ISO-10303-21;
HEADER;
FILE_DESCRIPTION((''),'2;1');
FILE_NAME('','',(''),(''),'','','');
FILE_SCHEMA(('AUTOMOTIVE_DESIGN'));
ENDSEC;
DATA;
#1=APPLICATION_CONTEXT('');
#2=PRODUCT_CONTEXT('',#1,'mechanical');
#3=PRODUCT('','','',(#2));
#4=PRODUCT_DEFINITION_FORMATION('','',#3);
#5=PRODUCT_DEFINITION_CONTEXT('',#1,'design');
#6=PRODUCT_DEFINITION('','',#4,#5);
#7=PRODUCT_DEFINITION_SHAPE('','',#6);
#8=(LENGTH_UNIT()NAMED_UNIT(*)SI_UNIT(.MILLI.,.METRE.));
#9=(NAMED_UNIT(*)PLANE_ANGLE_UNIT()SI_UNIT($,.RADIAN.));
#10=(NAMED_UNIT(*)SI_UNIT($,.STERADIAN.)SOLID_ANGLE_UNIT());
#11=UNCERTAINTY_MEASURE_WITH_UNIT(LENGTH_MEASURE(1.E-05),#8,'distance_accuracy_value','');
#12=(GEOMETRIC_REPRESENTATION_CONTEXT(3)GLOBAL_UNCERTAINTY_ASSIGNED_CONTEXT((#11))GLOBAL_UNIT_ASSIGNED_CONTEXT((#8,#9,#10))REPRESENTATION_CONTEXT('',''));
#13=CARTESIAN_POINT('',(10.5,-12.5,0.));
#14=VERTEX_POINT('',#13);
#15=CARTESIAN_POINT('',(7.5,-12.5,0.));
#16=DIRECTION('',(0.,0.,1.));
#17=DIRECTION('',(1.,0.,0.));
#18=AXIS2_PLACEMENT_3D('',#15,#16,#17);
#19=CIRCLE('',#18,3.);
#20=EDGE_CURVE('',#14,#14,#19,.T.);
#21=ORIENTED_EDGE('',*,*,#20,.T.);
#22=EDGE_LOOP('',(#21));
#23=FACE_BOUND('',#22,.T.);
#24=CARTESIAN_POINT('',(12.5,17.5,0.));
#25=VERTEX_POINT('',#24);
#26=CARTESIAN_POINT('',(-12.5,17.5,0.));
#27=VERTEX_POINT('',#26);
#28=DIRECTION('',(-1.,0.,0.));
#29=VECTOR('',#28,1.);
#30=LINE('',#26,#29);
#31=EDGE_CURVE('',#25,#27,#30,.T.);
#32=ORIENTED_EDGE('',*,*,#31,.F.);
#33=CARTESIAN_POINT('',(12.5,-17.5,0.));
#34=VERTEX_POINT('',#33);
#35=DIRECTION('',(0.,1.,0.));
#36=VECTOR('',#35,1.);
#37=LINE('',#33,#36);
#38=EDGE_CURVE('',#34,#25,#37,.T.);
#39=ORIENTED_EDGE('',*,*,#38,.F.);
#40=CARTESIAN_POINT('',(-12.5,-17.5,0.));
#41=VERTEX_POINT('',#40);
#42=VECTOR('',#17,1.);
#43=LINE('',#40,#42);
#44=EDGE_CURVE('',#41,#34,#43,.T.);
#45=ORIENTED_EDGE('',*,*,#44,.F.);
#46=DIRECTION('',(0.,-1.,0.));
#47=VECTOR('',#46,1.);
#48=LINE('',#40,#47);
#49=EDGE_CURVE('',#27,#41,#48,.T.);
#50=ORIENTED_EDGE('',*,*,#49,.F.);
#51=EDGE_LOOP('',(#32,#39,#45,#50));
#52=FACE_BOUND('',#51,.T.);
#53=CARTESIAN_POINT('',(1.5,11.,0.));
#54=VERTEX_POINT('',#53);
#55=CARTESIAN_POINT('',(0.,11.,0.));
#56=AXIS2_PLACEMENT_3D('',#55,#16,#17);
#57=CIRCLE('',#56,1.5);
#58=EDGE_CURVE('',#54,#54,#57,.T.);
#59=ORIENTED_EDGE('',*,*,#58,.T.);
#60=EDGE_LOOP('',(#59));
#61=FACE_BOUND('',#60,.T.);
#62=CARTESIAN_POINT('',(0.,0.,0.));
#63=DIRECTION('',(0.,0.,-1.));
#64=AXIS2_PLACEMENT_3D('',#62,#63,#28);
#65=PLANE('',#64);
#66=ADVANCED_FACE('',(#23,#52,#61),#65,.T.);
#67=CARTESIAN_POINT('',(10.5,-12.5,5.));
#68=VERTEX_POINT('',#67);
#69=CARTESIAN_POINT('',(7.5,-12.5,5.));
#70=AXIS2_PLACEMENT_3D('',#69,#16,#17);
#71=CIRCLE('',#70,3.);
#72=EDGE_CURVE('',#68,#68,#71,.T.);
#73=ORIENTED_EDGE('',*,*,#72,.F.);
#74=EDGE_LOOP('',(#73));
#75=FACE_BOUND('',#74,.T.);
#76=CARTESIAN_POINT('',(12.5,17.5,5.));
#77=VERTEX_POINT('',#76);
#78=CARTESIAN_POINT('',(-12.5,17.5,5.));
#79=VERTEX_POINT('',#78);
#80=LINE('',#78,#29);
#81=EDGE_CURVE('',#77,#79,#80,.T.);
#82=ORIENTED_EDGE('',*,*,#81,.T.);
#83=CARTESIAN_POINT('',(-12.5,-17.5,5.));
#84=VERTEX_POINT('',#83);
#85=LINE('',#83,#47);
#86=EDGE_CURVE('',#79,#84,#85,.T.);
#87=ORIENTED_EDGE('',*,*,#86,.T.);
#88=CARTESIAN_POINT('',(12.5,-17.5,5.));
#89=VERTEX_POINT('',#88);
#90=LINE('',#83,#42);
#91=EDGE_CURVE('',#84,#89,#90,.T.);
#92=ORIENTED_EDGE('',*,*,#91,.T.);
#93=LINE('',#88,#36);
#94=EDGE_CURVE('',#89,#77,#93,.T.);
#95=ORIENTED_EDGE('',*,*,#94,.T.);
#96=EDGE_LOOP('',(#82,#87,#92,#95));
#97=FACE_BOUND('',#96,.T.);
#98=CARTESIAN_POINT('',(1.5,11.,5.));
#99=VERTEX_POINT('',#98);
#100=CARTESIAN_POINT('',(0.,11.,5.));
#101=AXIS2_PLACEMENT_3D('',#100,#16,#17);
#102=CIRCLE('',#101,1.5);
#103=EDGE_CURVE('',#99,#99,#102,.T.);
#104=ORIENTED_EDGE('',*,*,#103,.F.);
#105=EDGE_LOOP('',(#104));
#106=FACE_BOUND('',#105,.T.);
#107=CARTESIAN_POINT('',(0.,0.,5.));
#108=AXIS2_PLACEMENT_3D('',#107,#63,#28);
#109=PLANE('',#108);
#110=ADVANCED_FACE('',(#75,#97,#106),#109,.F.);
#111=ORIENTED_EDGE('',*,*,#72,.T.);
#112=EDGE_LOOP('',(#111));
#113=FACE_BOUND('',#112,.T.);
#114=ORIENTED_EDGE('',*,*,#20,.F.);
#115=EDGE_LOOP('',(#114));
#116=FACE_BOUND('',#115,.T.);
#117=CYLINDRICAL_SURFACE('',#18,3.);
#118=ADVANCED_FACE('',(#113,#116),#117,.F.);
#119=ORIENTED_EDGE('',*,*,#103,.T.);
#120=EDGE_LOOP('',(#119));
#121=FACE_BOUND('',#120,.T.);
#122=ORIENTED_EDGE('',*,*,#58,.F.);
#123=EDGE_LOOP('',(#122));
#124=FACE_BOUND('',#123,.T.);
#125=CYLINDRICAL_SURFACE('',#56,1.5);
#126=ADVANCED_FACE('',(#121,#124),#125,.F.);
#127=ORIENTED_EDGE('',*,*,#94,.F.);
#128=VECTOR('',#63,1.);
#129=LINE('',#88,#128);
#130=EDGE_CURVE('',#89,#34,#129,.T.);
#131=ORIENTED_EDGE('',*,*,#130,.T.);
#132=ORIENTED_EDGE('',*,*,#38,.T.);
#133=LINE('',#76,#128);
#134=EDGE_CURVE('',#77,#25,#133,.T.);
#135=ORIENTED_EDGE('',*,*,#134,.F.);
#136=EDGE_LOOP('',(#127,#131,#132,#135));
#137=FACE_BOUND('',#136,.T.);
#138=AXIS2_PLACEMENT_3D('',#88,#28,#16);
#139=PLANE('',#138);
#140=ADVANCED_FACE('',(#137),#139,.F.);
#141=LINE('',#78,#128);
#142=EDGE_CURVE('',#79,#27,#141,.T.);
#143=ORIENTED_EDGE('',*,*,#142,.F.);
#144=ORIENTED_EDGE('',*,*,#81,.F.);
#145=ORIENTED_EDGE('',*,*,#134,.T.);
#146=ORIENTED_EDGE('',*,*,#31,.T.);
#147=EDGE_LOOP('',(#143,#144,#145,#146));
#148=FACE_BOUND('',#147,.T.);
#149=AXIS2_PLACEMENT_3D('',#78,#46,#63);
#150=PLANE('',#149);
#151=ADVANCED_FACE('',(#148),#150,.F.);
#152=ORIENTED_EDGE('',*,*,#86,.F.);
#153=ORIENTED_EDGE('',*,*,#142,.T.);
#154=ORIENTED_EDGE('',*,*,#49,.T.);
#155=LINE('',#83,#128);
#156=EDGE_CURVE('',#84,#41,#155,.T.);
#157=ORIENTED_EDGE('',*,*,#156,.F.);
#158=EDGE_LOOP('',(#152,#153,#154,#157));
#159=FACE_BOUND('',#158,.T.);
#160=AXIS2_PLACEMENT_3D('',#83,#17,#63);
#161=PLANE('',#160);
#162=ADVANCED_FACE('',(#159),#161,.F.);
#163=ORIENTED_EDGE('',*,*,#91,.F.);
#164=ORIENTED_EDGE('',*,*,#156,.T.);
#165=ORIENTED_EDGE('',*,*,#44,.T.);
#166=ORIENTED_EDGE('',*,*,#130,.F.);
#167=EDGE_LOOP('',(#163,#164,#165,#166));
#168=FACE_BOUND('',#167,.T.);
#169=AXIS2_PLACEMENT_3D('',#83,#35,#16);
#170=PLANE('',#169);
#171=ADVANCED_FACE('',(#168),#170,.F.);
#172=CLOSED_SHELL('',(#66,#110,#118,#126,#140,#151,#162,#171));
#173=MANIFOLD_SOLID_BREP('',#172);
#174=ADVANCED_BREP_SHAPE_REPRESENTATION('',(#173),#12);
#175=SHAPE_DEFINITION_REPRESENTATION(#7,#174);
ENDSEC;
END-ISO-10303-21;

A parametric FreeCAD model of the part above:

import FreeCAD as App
import Part
import Sketcher
from FreeCAD import Vector


def add_polygon(sketch, points):
    """Adds a closed chain of lines whose ends are joined by coincident constraints."""
    first, n = sketch.GeometryCount, len(points)
    for a, b in zip(points, points[1:] + points[:1]):
        sketch.addGeometry(Part.LineSegment(App.Vector(*a, 0), App.Vector(*b, 0)), False)
    for i in range(n):
        sketch.addConstraint(Sketcher.Constraint("Coincident", first + i, 2, first + (i + 1) % n, 1))

doc = App.newDocument("Part")
body = doc.addObject("PartDesign::Body", "Body")

# Sketch on XY plane
sketch1 = body.newObject("Sketcher::SketchObject", "Sketch")
sketch1.AttachmentSupport = (doc.getObject("XY_Plane"), [""])
sketch1.MapMode = "FlatFace"
add_polygon(sketch1, [(-12, 18), (-12, -18), (12, -18), (12, 18)])  # lines 0-3
sketch1.addConstraint([
    Sketcher.Constraint("Vertical", 0),
    Sketcher.Constraint("Horizontal", 1),
    Sketcher.Constraint("Vertical", 2),
    Sketcher.Constraint("Horizontal", 3),
    Sketcher.Constraint("Symmetric", 0, 2, 2, 2, -1, 1),
    Sketcher.Constraint("DistanceX", 1, 1, 1, 2, 25.0),
    Sketcher.Constraint("DistanceY", 0, 2, 0, 1, 35.0),
])
pad1 = body.newObject("PartDesign::Pad", "Pad")
pad1.Profile = sketch1
pad1.Length = 5

# Sketch on XY plane
sketch2 = body.newObject("Sketcher::SketchObject", "Sketch001")
sketch2.AttachmentSupport = (doc.getObject("XY_Plane"), [""])
sketch2.MapMode = "FlatFace"
sketch2.AttachmentOffset = App.Placement(Vector(0, 0, 5), App.Rotation())
sketch2.addGeometry(Part.Circle(Vector(0, 11, 0), Vector(0, 0, 1), 1.5), False)
sketch2.addConstraint([
    Sketcher.Constraint("PointOnObject", 0, 3, -2),
    Sketcher.Constraint("Diameter", 0, 3.0),
    Sketcher.Constraint("DistanceY", -1, 1, 0, 3, 11.0),
])
pocket1 = body.newObject("PartDesign::Pocket", "Pocket")
pocket1.Profile = sketch2
pocket1.Type = "ThroughAll"

# Sketch on XY plane
sketch3 = body.newObject("Sketcher::SketchObject", "Sketch002")
sketch3.AttachmentSupport = (doc.getObject("XY_Plane"), [""])
sketch3.MapMode = "FlatFace"
sketch3.AttachmentOffset = App.Placement(Vector(0, 0, 5), App.Rotation())
sketch3.addGeometry(Part.Circle(Vector(7.5, -12.5, 0), Vector(0, 0, 1), 3), False)
sketch3.addConstraint([
    Sketcher.Constraint("Diameter", 0, 6.0),
    Sketcher.Constraint("DistanceX", -1, 1, 0, 3, 7.5),
    Sketcher.Constraint("DistanceY", 0, 3, -1, 1, 12.5),
])
pocket2 = body.newObject("PartDesign::Pocket", "Pocket001")
pocket2.Profile = sketch3
pocket2.Type = "ThroughAll"

doc.recompute()
